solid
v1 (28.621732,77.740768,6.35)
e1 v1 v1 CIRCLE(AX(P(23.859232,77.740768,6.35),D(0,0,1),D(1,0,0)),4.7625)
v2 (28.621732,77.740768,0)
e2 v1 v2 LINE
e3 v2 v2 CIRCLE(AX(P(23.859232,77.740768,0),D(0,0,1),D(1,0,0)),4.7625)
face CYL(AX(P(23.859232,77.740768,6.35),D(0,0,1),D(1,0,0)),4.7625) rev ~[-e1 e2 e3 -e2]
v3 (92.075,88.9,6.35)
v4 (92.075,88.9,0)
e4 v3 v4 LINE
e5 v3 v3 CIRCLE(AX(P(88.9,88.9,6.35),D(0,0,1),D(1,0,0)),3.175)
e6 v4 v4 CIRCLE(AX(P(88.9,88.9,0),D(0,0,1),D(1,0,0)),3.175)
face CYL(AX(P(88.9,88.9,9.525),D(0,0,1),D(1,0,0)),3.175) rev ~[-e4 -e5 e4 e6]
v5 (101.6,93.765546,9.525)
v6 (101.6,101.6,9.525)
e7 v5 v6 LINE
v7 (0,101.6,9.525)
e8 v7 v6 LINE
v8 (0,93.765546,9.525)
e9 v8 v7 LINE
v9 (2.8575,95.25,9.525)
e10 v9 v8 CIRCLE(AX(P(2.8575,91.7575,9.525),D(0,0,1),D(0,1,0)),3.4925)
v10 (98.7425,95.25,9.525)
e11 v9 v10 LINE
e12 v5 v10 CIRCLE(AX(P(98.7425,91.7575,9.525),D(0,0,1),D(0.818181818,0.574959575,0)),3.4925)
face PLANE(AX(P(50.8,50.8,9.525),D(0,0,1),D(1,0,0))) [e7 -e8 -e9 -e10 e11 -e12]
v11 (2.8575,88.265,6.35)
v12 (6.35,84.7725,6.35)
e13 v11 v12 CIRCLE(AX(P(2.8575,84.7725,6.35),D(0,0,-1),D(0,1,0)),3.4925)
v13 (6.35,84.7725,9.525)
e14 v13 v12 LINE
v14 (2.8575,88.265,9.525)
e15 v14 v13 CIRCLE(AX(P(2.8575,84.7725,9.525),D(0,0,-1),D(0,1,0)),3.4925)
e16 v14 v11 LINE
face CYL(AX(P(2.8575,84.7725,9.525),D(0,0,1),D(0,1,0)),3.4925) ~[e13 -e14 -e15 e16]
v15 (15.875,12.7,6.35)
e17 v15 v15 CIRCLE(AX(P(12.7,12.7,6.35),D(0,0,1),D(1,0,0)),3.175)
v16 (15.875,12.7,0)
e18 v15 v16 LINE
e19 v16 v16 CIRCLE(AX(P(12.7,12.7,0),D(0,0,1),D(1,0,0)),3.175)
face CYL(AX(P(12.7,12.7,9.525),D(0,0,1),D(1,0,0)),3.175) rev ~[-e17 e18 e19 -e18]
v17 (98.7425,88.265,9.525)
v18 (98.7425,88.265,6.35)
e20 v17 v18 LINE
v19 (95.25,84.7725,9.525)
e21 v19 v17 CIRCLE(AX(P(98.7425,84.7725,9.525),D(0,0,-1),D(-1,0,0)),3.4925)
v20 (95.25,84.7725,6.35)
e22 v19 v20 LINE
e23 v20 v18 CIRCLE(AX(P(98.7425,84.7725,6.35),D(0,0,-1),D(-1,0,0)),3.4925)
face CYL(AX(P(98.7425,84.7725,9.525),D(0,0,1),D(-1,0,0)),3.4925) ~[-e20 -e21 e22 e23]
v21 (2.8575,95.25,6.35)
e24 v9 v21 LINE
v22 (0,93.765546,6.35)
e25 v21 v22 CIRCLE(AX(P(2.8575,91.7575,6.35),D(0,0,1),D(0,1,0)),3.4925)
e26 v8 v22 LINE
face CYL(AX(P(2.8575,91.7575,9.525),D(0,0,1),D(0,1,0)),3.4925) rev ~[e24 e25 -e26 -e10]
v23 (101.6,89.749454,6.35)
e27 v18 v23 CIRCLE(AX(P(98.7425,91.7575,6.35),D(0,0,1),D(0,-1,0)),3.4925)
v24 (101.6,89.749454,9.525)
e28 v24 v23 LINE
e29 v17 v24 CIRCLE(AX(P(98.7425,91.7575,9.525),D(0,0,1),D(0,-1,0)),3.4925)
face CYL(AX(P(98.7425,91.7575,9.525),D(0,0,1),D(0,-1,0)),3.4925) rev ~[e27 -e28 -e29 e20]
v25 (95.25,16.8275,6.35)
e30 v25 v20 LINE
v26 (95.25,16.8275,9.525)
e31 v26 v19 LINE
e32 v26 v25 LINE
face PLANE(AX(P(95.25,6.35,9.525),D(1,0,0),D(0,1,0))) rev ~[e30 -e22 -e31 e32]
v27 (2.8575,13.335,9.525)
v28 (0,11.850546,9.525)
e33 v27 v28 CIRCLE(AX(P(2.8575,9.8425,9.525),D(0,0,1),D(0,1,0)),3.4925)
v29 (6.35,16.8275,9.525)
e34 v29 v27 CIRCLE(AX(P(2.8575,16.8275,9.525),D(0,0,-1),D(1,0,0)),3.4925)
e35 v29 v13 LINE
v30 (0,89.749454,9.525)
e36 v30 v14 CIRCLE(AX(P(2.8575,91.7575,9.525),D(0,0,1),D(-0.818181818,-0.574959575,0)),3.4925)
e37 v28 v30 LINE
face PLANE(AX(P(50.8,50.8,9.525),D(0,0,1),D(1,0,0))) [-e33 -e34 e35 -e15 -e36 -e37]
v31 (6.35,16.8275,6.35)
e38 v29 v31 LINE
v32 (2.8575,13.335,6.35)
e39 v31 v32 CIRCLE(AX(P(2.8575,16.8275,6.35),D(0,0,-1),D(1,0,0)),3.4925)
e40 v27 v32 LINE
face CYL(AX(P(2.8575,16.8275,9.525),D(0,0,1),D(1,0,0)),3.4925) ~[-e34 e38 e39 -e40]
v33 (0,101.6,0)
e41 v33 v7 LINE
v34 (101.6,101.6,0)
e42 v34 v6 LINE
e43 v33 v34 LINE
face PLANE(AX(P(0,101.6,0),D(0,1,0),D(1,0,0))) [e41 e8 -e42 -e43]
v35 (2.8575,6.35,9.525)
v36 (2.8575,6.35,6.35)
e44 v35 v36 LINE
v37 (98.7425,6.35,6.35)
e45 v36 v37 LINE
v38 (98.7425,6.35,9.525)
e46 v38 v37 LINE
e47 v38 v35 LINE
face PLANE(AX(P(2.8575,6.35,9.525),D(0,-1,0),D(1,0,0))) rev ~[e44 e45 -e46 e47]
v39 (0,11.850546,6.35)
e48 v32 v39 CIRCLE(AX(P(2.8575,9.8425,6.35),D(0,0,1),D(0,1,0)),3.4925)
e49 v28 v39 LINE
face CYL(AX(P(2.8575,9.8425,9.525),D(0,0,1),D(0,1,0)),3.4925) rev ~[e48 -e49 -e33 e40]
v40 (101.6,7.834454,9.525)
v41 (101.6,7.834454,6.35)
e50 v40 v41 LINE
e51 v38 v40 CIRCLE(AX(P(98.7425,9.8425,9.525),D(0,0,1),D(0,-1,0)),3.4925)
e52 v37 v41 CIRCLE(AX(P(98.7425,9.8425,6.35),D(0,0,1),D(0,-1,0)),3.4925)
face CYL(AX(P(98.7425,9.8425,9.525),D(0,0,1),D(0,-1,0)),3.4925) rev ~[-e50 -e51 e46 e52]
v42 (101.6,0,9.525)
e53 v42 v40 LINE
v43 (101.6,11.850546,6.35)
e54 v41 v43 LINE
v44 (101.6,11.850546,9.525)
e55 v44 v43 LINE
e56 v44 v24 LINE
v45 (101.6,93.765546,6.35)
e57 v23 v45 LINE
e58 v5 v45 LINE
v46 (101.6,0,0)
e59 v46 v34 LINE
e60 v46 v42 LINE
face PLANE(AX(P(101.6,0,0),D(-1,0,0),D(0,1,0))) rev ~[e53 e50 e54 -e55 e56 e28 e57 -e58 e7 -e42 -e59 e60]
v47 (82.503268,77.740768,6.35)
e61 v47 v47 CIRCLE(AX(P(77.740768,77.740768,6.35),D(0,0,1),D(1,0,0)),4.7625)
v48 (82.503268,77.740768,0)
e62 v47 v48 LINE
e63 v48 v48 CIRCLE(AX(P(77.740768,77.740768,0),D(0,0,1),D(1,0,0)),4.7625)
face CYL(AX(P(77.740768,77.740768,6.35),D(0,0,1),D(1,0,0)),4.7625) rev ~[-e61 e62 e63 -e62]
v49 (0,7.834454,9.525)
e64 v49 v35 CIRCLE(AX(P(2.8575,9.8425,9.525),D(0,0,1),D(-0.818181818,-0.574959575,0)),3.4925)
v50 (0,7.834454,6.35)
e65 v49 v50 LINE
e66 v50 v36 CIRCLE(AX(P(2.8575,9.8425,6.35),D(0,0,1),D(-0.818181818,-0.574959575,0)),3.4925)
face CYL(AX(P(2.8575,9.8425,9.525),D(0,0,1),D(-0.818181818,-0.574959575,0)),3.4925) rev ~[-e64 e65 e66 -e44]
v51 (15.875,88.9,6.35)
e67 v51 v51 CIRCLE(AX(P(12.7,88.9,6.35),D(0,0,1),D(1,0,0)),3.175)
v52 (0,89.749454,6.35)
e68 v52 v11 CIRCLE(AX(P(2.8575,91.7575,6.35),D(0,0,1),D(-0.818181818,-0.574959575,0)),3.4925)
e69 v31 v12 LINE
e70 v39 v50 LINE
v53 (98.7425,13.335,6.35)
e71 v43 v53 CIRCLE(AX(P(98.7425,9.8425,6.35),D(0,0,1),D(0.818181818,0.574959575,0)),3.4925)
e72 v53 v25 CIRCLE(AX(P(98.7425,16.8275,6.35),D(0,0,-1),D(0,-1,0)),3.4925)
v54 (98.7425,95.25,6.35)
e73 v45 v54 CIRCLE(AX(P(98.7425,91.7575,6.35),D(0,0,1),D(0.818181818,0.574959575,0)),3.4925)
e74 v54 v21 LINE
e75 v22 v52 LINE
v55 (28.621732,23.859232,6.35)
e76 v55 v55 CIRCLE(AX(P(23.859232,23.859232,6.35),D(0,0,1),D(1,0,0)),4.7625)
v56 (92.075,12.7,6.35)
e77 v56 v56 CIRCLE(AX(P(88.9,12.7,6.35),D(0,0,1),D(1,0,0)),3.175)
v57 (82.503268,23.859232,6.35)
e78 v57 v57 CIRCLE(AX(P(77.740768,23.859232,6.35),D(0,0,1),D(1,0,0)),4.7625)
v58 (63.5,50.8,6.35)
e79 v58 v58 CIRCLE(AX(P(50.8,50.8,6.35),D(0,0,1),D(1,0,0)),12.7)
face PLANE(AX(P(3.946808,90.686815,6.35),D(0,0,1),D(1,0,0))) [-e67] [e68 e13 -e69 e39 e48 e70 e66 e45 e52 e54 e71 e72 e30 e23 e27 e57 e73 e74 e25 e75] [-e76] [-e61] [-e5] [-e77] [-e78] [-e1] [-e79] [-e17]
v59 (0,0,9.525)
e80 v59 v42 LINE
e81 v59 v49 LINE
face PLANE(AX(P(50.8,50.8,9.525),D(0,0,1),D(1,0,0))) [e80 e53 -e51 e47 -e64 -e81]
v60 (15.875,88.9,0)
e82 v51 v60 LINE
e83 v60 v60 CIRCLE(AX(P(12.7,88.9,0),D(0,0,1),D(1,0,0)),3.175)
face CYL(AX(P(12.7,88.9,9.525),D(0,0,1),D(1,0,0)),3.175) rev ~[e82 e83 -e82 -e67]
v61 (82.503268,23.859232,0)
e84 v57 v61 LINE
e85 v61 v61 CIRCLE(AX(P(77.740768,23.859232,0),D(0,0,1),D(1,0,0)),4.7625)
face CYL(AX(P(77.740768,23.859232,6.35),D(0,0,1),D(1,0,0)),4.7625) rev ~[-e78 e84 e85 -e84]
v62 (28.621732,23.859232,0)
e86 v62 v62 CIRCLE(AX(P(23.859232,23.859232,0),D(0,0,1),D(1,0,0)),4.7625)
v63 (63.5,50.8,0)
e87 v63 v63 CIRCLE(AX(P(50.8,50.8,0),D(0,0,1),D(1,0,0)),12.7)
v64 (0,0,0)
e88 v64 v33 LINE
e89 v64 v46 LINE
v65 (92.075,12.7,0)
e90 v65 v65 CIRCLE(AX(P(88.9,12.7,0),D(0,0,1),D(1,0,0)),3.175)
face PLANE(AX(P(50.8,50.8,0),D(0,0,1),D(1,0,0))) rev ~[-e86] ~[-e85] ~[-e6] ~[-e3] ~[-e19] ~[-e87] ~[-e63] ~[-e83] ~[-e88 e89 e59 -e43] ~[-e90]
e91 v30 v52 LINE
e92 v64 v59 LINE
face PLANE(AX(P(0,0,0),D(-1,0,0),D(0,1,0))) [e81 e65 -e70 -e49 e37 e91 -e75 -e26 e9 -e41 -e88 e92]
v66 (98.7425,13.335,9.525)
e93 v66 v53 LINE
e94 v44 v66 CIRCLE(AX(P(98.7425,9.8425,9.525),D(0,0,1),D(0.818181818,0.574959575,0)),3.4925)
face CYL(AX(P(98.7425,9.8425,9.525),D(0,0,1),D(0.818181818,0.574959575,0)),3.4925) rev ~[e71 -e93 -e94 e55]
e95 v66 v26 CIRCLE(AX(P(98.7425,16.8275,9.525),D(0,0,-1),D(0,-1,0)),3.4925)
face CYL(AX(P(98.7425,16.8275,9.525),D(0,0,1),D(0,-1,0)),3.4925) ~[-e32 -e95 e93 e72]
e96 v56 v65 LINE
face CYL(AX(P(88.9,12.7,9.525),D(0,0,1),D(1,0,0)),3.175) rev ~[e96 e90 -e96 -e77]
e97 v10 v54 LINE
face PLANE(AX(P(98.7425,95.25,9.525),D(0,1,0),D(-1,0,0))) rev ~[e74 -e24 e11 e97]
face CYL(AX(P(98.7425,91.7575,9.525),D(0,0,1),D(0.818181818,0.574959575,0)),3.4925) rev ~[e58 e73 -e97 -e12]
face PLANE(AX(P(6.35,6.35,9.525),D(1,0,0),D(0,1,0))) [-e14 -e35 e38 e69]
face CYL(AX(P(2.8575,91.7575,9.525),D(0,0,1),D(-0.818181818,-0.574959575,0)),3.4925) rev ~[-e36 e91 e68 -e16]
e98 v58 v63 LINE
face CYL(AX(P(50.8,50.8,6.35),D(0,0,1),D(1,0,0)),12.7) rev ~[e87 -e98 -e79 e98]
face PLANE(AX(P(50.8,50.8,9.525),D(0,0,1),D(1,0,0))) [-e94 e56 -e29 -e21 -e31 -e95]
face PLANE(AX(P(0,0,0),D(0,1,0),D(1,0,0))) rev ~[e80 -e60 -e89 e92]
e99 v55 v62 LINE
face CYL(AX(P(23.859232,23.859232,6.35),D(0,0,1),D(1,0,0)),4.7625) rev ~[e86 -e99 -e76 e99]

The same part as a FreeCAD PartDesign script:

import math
import FreeCAD as App
import Part
import Sketcher
Q = App.Units.Quantity

doc = App.newDocument("Part")
params = doc.addObject("Spreadsheet::Sheet", "Params")
for row, (alias, value) in enumerate([
    ("sketch1_width", "4 in"),
    ("pad1_length", "0.375 in"),
    ("sketch2_width", "3.5 in"),
    ("pocket1_length", "0.125 in"),
    ("pocket2_length", "0.125 in"),
    ("sketch4_diameter", "1 in"),
    ("sketch4_diameter2", "0.375 in"),
    ("sketch5_diameter", "0.25 in"),
], start=1):
    params.set(f"A{row}", alias)
    params.set(f"B{row}", "=" + value)
    params.setAlias(f"B{row}", alias)

body = doc.addObject("PartDesign::Body", "Body")

# Sketch on XY plane
sketch1 = body.newObject("Sketcher::SketchObject", "Sketch")
sketch1.AttachmentSupport = (doc.getObject("XY_Plane"), [""])
sketch1.MapMode = "FlatFace"
sketch1.addGeometry([
    Part.LineSegment(App.Vector(0, 102, 0), App.Vector(0, 0, 0)),
    Part.LineSegment(App.Vector(0, 0, 0), App.Vector(102, 0, 0)),
    Part.LineSegment(App.Vector(102, 0, 0), App.Vector(102, 102, 0)),
    Part.LineSegment(App.Vector(102, 102, 0), App.Vector(0, 102, 0)),
], False)
sketch1.addConstraint([
    Sketcher.Constraint("Coincident", 0, 2, 1, 1),
    Sketcher.Constraint("Coincident", 1, 2, 2, 1),
    Sketcher.Constraint("Coincident", 2, 2, 3, 1),
    Sketcher.Constraint("Coincident", 3, 2, 0, 1),
    Sketcher.Constraint("Vertical", 0),
    Sketcher.Constraint("Horizontal", 1),
    Sketcher.Constraint("Vertical", 2),
    Sketcher.Constraint("Horizontal", 3),
    Sketcher.Constraint("Coincident", 0, 2, -1, 1),
    Sketcher.Constraint("Equal", 3, 0),
    Sketcher.Constraint("DistanceX", 1, 1, 1, 2, Q("4 in")),
])
sketch1.setExpression("Constraints[10]", "Params.sketch1_width")
pad1 = body.newObject("PartDesign::Pad", "Pad")
pad1.Profile = sketch1
pad1.setExpression("Length", "Params.pad1_length")

# Sketch on XY plane
sketch2 = body.newObject("Sketcher::SketchObject", "Sketch001")
sketch2.AttachmentSupport = (doc.getObject("XY_Plane"), [""])
sketch2.MapMode = "FlatFace"
sketch2.AttachmentOffset = App.Placement(App.Vector(0, 0, 0.375 * 25.4), App.Rotation())
sketch2.addGeometry([
    Part.LineSegment(App.Vector(6, 95, 0), App.Vector(6, 6, 0)),
    Part.LineSegment(App.Vector(6, 6, 0), App.Vector(95, 6, 0)),
    Part.LineSegment(App.Vector(95, 6, 0), App.Vector(95, 95, 0)),
    Part.LineSegment(App.Vector(95, 95, 0), App.Vector(6, 95, 0)),
], False)
sketch2.addConstraint([
    Sketcher.Constraint("Coincident", 0, 2, 1, 1),
    Sketcher.Constraint("Coincident", 1, 2, 2, 1),
    Sketcher.Constraint("Coincident", 2, 2, 3, 1),
    Sketcher.Constraint("Coincident", 3, 2, 0, 1),
    Sketcher.Constraint("Vertical", 0),
    Sketcher.Constraint("Horizontal", 1),
    Sketcher.Constraint("Vertical", 2),
    Sketcher.Constraint("Horizontal", 3),
    Sketcher.Constraint("Equal", 3, 0),
    Sketcher.Constraint("DistanceX", 1, 1, 1, 2, Q("3.5 in")),
    Sketcher.Constraint("DistanceX", -1, 1, 0, 2, Q("0.25 in")),
    Sketcher.Constraint("DistanceY", -1, 1, 0, 2, Q("0.25 in")),
])
sketch2.setExpression("Constraints[9]", "Params.sketch2_width")
pocket1 = body.newObject("PartDesign::Pocket", "Pocket")
pocket1.Profile = sketch2
pocket1.setExpression("Length", "Params.pocket1_length")

# Sketch on XY plane
sketch3 = body.newObject("Sketcher::SketchObject", "Sketch002")
sketch3.AttachmentSupport = (doc.getObject("XY_Plane"), [""])
sketch3.MapMode = "FlatFace"
sketch3.AttachmentOffset = App.Placement(App.Vector(0, 0, 0.375 * 25.4), App.Rotation())
sketch3.addGeometry([
    Part.LineSegment(App.Vector(6.3, 95.2, 0), App.Vector(2.9, 95.2, 0)),  # 0
    Part.ArcOfCircle(Part.Circle(App.Vector(2.9, 91.8, 0), App.Vector(0, 0, 1), 3.5), math.radians(90), math.radians(145)),  # 1
    Part.LineSegment(App.Vector(0, 93.8, 0), App.Vector(0, 89.7, 0)),  # 2
    Part.ArcOfCircle(Part.Circle(App.Vector(2.9, 91.8, 0), App.Vector(0, 0, 1), 3.5), math.radians(-145), math.radians(-90)),  # 3
    Part.ArcOfCircle(Part.Circle(App.Vector(2.9, 84.8, 0), App.Vector(0, 0, 1), 3.5), math.radians(0), math.radians(90)),  # 4
    Part.LineSegment(App.Vector(6.3, 84.8, 0), App.Vector(6.3, 95.2, 0)),  # 5
    Part.ArcOfCircle(Part.Circle(App.Vector(2.9, 9.8, 0), App.Vector(0, 0, 1), 3.5), math.radians(90), math.radians(145)),  # 6
    Part.LineSegment(App.Vector(0, 11.9, 0), App.Vector(0, 7.8, 0)),  # 7
    Part.ArcOfCircle(Part.Circle(App.Vector(2.9, 9.8, 0), App.Vector(0, 0, 1), 3.5), math.radians(-145), math.radians(-90)),  # 8
    Part.LineSegment(App.Vector(2.9, 6.3, 0), App.Vector(6.3, 6.3, 0)),  # 9
    Part.LineSegment(App.Vector(6.3, 6.3, 0), App.Vector(6.3, 16.8, 0)),  # 10
    Part.ArcOfCircle(Part.Circle(App.Vector(2.9, 16.8, 0), App.Vector(0, 0, 1), 3.5), math.radians(-90), math.radians(0)),  # 11
    Part.ArcOfCircle(Part.Circle(App.Vector(98.7, 16.8, 0), App.Vector(0, 0, 1), 3.5), math.radians(180), math.radians(270)),  # 12
    Part.LineSegment(App.Vector(95.2, 16.8, 0), App.Vector(95.2, 6.3, 0)),  # 13
    Part.LineSegment(App.Vector(95.2, 6.3, 0), App.Vector(98.7, 6.3, 0)),  # 14
    Part.ArcOfCircle(Part.Circle(App.Vector(98.7, 9.8, 0), App.Vector(0, 0, 1), 3.5), math.radians(-90), math.radians(-35)),  # 15
    Part.LineSegment(App.Vector(101.6, 7.8, 0), App.Vector(101.6, 11.9, 0)),  # 16
    Part.ArcOfCircle(Part.Circle(App.Vector(98.7, 9.8, 0), App.Vector(0, 0, 1), 3.5), math.radians(35), math.radians(90)),  # 17
    Part.LineSegment(App.Vector(98.7, 95.2, 0), App.Vector(95.2, 95.2, 0)),  # 18
    Part.LineSegment(App.Vector(95.2, 95.2, 0), App.Vector(95.2, 84.8, 0)),  # 19
    Part.ArcOfCircle(Part.Circle(App.Vector(98.7, 84.8, 0), App.Vector(0, 0, 1), 3.5), math.radians(90), math.radians(180)),  # 20
    Part.ArcOfCircle(Part.Circle(App.Vector(98.7, 91.8, 0), App.Vector(0, 0, 1), 3.5), math.radians(-90), math.radians(-35)),  # 21
    Part.LineSegment(App.Vector(101.6, 89.7, 0), App.Vector(101.6, 93.8, 0)),  # 22
    Part.ArcOfCircle(Part.Circle(App.Vector(98.7, 91.8, 0), App.Vector(0, 0, 1), 3.5), math.radians(35), math.radians(90)),  # 23
], False)
sketch3.addConstraint([
    Sketcher.Constraint("Tangent", 0, 2, 1, 1),
    Sketcher.Constraint("Coincident", 1, 2, 2, 1),
    Sketcher.Constraint("Coincident", 2, 2, 3, 1),
    Sketcher.Constraint("Tangent", 3, 2, 4, 2),
    Sketcher.Constraint("Tangent", 4, 1, 5, 1),
    Sketcher.Constraint("Coincident", 5, 2, 0, 1),
    Sketcher.Constraint("Coincident", 6, 2, 7, 1),
    Sketcher.Constraint("Coincident", 7, 2, 8, 1),
    Sketcher.Constraint("Tangent", 8, 2, 9, 1),
    Sketcher.Constraint("Coincident", 9, 2, 10, 1),
    Sketcher.Constraint("Tangent", 10, 2, 11, 2),
    Sketcher.Constraint("Tangent", 11, 1, 6, 1),
    Sketcher.Constraint("Tangent", 12, 1, 13, 1),
    Sketcher.Constraint("Coincident", 13, 2, 14, 1),
    Sketcher.Constraint("Tangent", 14, 2, 15, 1),
    Sketcher.Constraint("Coincident", 15, 2, 16, 1),
    Sketcher.Constraint("Coincident", 16, 2, 17, 1),
    Sketcher.Constraint("Tangent", 17, 2, 12, 2),
    Sketcher.Constraint("Coincident", 18, 2, 19, 1),
    Sketcher.Constraint("Tangent", 19, 2, 20, 2),
    Sketcher.Constraint("Tangent", 20, 1, 21, 1),
    Sketcher.Constraint("Coincident", 21, 2, 22, 1),
    Sketcher.Constraint("Coincident", 22, 2, 23, 1),
    Sketcher.Constraint("Tangent", 23, 2, 18, 1),
    Sketcher.Constraint("Horizontal", 0),
    Sketcher.Constraint("Vertical", 2),
    Sketcher.Constraint("Vertical", 5),
    Sketcher.Constraint("Vertical", 7),
    Sketcher.Constraint("Horizontal", 9),
    Sketcher.Constraint("Vertical", 10),
    Sketcher.Constraint("Vertical", 13),
    Sketcher.Constraint("Horizontal", 14),
    Sketcher.Constraint("Vertical", 16),
    Sketcher.Constraint("Horizontal", 18),
    Sketcher.Constraint("Vertical", 19),
    Sketcher.Constraint("Vertical", 22),
    Sketcher.Constraint("Coincident", 3, 3, 1, 3),
    Sketcher.Constraint("Coincident", 8, 3, 6, 3),
    Sketcher.Constraint("Coincident", 17, 3, 15, 3),
    Sketcher.Constraint("Coincident", 23, 3, 21, 3),
    Sketcher.Constraint("Equal", 1, 3),
    Sketcher.Constraint("Equal", 3, 4),
    Sketcher.Constraint("Equal", 4, 6),
    Sketcher.Constraint("Equal", 6, 8),
    Sketcher.Constraint("Equal", 8, 11),
    Sketcher.Constraint("Equal", 11, 12),
    Sketcher.Constraint("Equal", 12, 15),
    Sketcher.Constraint("Equal", 15, 17),
    Sketcher.Constraint("Equal", 17, 20),
    Sketcher.Constraint("Equal", 20, 21),
    Sketcher.Constraint("Equal", 21, 23),
    Sketcher.Constraint("PointOnObject", 1, 2, -2),
    Sketcher.Constraint("PointOnObject", 6, 2, -2),
    Sketcher.Constraint("Horizontal", 11, 3, 12, 3),
    Sketcher.Constraint("Horizontal", 4, 3, 20, 3),
    Sketcher.Constraint("Horizontal", 7, 2, 15, 2),
    Sketcher.Constraint("Horizontal", 2, 2, 21, 2),
    Sketcher.Constraint("Vertical", 3, 3, 4, 3),
    Sketcher.Constraint("Vertical", 4, 3, 6, 3),
    Sketcher.Constraint("Vertical", 8, 3, 11, 3),
    Sketcher.Constraint("Vertical", 12, 3, 15, 3),
    Sketcher.Constraint("Vertical", 17, 3, 20, 3),
    Sketcher.Constraint("Vertical", 20, 3, 21, 3),
    Sketcher.Constraint("DistanceX", -1, 1, 15, 2, Q("4 in")),
    Sketcher.Constraint("Radius", 1, Q("0.1375 in")),
    Sketcher.Constraint("DistanceY", -1, 1, 0, 2, Q("3.75 in")),
    Sketcher.Constraint("DistanceX", -1, 1, 4, 1, Q("0.25 in")),
    Sketcher.Constraint("DistanceY", -1, 1, 8, 2, Q("0.25 in")),
])
pocket2 = body.newObject("PartDesign::Pocket", "Pocket001")
pocket2.Profile = sketch3
pocket2.setExpression("Length", "Params.pocket2_length")

# Sketch on XY plane
sketch4 = body.newObject("Sketcher::SketchObject", "Sketch003")
sketch4.AttachmentSupport = (doc.getObject("XY_Plane"), [""])
sketch4.MapMode = "FlatFace"
sketch4.AttachmentOffset = App.Placement(App.Vector(0, 0, 0.25 * 25.4), App.Rotation())
sketch4.addGeometry([
    Part.Circle(App.Vector(23.9, 77.7, 0), App.Vector(0, 0, 1), 4.8),  # 0
    Part.Circle(App.Vector(77.7, 77.7, 0), App.Vector(0, 0, 1), 4.8),  # 1
    Part.Circle(App.Vector(77.7, 23.9, 0), App.Vector(0, 0, 1), 4.8),  # 2
    Part.Circle(App.Vector(23.9, 23.9, 0), App.Vector(0, 0, 1), 4.8),  # 3
    Part.Circle(App.Vector(50.8, 50.8, 0), App.Vector(0, 0, 1), 12.7),  # 4
], False)
sketch4.addConstraint([
    Sketcher.Constraint("Equal", 0, 1),
    Sketcher.Constraint("Equal", 1, 2),
    Sketcher.Constraint("Equal", 2, 3),
    Sketcher.Constraint("Horizontal", 0, 3, 1, 3),
    Sketcher.Constraint("Horizontal", 2, 3, 3, 3),
    Sketcher.Constraint("Vertical", 1, 3, 2, 3),
    Sketcher.Constraint("Vertical", 0, 3, 3, 3),
    Sketcher.Constraint("Diameter", 4, Q("1 in")),
    Sketcher.Constraint("Diameter", 0, Q("0.375 in")),
    Sketcher.Constraint("DistanceX", -1, 1, 4, 3, Q("2 in")),
    Sketcher.Constraint("DistanceY", -1, 1, 4, 3, Q("2 in")),
    Sketcher.Constraint("DistanceX", -1, 1, 0, 3, Q("23.859232 mm")),
    Sketcher.Constraint("DistanceY", -1, 1, 0, 3, Q("77.740768 mm")),
    Sketcher.Constraint("DistanceX", -1, 1, 1, 3, Q("77.740768 mm")),
    Sketcher.Constraint("DistanceY", -1, 1, 2, 3, Q("23.859232 mm")),
])
sketch4.setExpression("Constraints[7]", "Params.sketch4_diameter")
sketch4.setExpression("Constraints[8]", "Params.sketch4_diameter2")
pocket3 = body.newObject("PartDesign::Pocket", "Pocket002")
pocket3.Profile = sketch4
pocket3.Type = "ThroughAll"

# Sketch on XY plane
sketch5 = body.newObject("Sketcher::SketchObject", "Sketch004")
sketch5.AttachmentSupport = (doc.getObject("XY_Plane"), [""])
sketch5.MapMode = "FlatFace"
sketch5.AttachmentOffset = App.Placement(App.Vector(0, 0, 0.375 * 25.4), App.Rotation())
sketch5.addGeometry([
    Part.Circle(App.Vector(12.7, 12.7, 0), App.Vector(0, 0, 1), 3.2),
    Part.Circle(App.Vector(88.9, 88.9, 0), App.Vector(0, 0, 1), 3.2),
    Part.Circle(App.Vector(12.7, 88.9, 0), App.Vector(0, 0, 1), 3.2),
    Part.Circle(App.Vector(88.9, 12.7, 0), App.Vector(0, 0, 1), 3.2),
], False)
sketch5.addConstraint([
    Sketcher.Constraint("Equal", 0, 1),
    Sketcher.Constraint("Equal", 1, 2),
    Sketcher.Constraint("Equal", 2, 3),
    Sketcher.Constraint("Horizontal", 1, 3, 2, 3),
    Sketcher.Constraint("Horizontal", 0, 3, 3, 3),
    Sketcher.Constraint("Vertical", 0, 3, 2, 3),
    Sketcher.Constraint("Vertical", 1, 3, 3, 3),
    Sketcher.Constraint("Diameter", 0, Q("0.25 in")),
    Sketcher.Constraint("DistanceX", 0, 3, 1, 3, Q("3 in")),
    Sketcher.Constraint("DistanceY", 0, 3, 1, 3, Q("3 in")),
    Sketcher.Constraint("DistanceX", -1, 1, 0, 3, Q("0.5 in")),
    Sketcher.Constraint("DistanceY", -1, 1, 0, 3, Q("0.5 in")),
])
sketch5.setExpression("Constraints[7]", "Params.sketch5_diameter")
pocket4 = body.newObject("PartDesign::Pocket", "Pocket003")
pocket4.Profile = sketch5
pocket4.Type = "ThroughAll"

doc.recompute()
